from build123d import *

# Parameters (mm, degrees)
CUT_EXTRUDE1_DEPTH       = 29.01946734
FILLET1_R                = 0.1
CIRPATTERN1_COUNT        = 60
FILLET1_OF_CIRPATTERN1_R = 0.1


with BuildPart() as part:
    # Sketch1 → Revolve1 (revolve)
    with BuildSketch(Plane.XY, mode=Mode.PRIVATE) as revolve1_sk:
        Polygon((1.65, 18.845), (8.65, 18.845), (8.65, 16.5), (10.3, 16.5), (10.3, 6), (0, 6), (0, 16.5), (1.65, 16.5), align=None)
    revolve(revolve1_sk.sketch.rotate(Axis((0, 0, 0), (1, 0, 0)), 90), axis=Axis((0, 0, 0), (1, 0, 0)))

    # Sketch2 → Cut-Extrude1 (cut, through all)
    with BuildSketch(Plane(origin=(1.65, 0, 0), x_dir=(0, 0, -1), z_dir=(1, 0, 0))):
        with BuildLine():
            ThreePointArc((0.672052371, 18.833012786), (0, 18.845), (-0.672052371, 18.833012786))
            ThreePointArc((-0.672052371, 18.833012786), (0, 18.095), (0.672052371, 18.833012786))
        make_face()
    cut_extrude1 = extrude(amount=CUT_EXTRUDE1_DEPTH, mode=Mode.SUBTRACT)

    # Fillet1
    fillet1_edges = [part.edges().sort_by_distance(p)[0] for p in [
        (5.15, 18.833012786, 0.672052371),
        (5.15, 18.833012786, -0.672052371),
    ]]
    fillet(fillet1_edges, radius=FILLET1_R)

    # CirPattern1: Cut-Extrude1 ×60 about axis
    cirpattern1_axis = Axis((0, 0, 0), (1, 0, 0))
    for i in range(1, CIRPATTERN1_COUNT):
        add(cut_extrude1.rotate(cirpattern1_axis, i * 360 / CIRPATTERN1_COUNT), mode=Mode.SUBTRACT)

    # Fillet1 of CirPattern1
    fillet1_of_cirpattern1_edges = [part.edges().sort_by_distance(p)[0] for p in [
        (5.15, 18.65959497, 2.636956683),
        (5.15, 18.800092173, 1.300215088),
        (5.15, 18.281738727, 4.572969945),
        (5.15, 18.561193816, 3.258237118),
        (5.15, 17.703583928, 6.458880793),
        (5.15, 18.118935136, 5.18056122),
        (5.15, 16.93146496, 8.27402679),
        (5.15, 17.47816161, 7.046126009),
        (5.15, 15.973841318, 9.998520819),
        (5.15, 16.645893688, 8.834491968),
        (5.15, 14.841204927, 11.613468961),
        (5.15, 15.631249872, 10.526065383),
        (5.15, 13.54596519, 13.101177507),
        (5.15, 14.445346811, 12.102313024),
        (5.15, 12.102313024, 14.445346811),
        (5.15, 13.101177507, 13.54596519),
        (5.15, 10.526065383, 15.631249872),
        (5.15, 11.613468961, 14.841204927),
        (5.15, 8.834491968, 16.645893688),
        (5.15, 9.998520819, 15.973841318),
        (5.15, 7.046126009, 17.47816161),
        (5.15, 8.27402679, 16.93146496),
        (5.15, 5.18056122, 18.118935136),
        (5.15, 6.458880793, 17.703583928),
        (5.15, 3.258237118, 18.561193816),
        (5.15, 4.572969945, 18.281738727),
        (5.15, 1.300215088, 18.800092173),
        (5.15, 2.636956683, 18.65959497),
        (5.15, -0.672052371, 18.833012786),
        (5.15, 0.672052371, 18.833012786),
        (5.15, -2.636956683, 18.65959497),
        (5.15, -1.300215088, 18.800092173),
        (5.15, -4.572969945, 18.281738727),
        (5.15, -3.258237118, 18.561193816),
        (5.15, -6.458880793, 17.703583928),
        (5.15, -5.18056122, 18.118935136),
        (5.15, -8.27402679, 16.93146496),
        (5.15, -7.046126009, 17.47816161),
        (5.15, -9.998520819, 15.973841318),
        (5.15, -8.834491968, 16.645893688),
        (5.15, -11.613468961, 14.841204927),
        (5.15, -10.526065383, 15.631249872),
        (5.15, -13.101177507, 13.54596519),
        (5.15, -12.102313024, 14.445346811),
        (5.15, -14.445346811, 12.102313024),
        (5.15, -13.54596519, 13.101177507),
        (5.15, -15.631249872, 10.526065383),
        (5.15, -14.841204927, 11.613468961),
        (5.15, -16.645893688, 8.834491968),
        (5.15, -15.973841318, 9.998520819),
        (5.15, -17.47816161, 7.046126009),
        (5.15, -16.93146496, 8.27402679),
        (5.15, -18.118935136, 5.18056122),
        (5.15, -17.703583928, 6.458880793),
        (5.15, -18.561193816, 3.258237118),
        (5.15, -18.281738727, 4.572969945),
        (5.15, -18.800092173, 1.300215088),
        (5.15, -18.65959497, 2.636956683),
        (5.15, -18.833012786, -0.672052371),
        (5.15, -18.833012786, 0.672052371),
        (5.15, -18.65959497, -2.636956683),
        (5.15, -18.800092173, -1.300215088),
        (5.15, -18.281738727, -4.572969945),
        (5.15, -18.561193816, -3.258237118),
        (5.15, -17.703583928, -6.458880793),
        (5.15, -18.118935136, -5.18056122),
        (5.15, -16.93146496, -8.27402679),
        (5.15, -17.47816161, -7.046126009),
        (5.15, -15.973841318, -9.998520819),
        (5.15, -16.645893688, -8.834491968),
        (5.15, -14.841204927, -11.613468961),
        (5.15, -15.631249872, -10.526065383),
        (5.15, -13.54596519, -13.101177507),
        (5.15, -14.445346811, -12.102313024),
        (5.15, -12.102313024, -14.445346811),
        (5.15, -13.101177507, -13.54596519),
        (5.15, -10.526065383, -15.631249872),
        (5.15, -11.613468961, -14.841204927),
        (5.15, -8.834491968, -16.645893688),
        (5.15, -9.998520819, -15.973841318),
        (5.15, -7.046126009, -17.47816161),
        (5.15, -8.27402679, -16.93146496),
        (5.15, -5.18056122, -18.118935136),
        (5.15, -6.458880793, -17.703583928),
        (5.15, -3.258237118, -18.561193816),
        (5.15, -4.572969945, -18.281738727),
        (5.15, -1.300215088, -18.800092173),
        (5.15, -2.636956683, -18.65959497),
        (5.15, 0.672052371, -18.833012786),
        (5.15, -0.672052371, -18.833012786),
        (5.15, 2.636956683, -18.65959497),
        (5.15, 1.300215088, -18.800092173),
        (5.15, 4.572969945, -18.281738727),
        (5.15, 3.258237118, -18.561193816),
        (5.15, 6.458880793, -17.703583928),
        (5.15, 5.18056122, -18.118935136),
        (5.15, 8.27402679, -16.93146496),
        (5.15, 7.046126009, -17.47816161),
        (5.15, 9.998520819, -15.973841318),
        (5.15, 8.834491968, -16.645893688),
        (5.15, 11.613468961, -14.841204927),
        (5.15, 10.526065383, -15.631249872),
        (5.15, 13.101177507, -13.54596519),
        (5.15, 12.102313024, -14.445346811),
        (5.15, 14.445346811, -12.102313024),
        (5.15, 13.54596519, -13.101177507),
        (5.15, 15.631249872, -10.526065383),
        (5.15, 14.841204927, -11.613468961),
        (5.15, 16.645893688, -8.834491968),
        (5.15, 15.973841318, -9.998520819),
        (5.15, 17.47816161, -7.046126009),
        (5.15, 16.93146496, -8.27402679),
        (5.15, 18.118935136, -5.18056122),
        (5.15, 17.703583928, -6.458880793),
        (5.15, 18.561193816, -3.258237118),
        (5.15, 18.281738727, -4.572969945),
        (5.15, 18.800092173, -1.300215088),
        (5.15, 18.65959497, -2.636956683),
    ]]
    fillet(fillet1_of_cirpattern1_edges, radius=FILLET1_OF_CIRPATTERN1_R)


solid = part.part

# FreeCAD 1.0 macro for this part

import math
import FreeCAD as App
import Part
import Sketcher
Q = App.Units.Quantity


def edges_at(feature, points):
    """Names of the edges that pass closest to the given points."""
    edges = feature.Shape.Edges
    near = lambda p: min(range(len(edges)), key=lambda i: edges[i].distToShape(Part.Vertex(*p))[0])
    return sorted({f"Edge{near(p) + 1}" for p in points})


def add_polygon(sketch, points):
    """Adds a closed chain of lines whose ends are joined by coincident constraints."""
    first, n = sketch.GeometryCount, len(points)
    for a, b in zip(points, points[1:] + points[:1]):
        sketch.addGeometry(Part.LineSegment(App.Vector(*a, 0), App.Vector(*b, 0)), False)
    for i in range(n):
        sketch.addConstraint(Sketcher.Constraint("Coincident", first + i, 2, first + (i + 1) % n, 1))

doc = App.newDocument("Part")
body = doc.addObject("PartDesign::Body", "Body")

# Sketch on XY plane
sketch1 = body.newObject("Sketcher::SketchObject", "Sketch")
sketch1.AttachmentSupport = (doc.getObject("XY_Plane"), [""])
sketch1.MapMode = "FlatFace"
add_polygon(sketch1, [(8.7, 18.8), (1.6, 18.8), (1.6, 16.5), (0, 16.5), (0, 6), (10.3, 6), (10.3, 16.5), (8.7, 16.5)])  # lines 0-7
sketch1.addConstraint([
    Sketcher.Constraint("Horizontal", 0),
    Sketcher.Constraint("Vertical", 1),
    Sketcher.Constraint("Horizontal", 2),
    Sketcher.Constraint("Vertical", 3),
    Sketcher.Constraint("Horizontal", 4),
    Sketcher.Constraint("Vertical", 5),
    Sketcher.Constraint("Horizontal", 6),
    Sketcher.Constraint("Vertical", 7),
    Sketcher.Constraint("PointOnObject", 2, 2, -2),
    Sketcher.Constraint("Horizontal", 2, 2, 5, 2),
    Sketcher.Constraint("Equal", 2, 6),
    Sketcher.Constraint("DistanceX", 0, 2, 0, 1, Q("7 mm")),
    Sketcher.Constraint("DistanceX", 4, 1, 4, 2, Q("10.3 mm")),
    Sketcher.Constraint("DistanceY", 3, 2, 3, 1, Q("10.5 mm")),
    Sketcher.Constraint("DistanceY", -1, 1, 3, 2, Q("6 mm")),
    Sketcher.Constraint("DistanceY", 1, 2, 1, 1, Q("2.345 mm")),
])
revolution = body.newObject("PartDesign::Revolution", "Revolution")
revolution.Profile = sketch1
revolution.ReferenceAxis = (sketch1, ["H_Axis"])
revolution.Angle = 360

# Sketch on YZ plane
sketch2 = body.newObject("Sketcher::SketchObject", "Sketch001")
sketch2.AttachmentSupport = (doc.getObject("YZ_Plane"), [""])
sketch2.MapMode = "FlatFace"
sketch2.AttachmentOffset = App.Placement(App.Vector(0, 0, 1.65), App.Rotation())
sketch2.addGeometry([
    Part.ArcOfCircle(Part.Circle(App.Vector(0, 0, 0), App.Vector(0, 0, 1), 18.8), math.radians(-2.04), math.radians(2.04)),
    Part.ArcOfCircle(Part.Circle(App.Vector(18.8, 0, 0), App.Vector(0, 0, 1), 0.7), math.radians(85), math.radians(275)),
], False)
sketch2.addConstraint([
    Sketcher.Constraint("Coincident", 0, 1, 1, 2),
    Sketcher.Constraint("Coincident", 1, 1, 0, 2),
    Sketcher.Constraint("Coincident", 0, 3, -1, 1),
    Sketcher.Constraint("PointOnObject", 1, 3, -1),
    Sketcher.Constraint("Radius", 0, Q("18.844999 mm")),
    Sketcher.Constraint("Radius", 1, Q("0.675 mm")),
    Sketcher.Constraint("DistanceX", -1, 1, 1, 3, Q("18.77 mm")),
])
pocket1 = body.newObject("PartDesign::Pocket", "Pocket")
pocket1.Profile = sketch2
pocket1.Type = "ThroughAll"
pocket1.Reversed = True
doc.recompute()

fillet = body.newObject("PartDesign::Fillet", "Fillet")
fillet.Base = (pocket1, edges_at(pocket1, [(5.15, 18.833, 0.672), (5.15, 18.833, -0.672)]))
fillet.Radius = 0.1
doc.recompute()

polarpattern = body.newObject("PartDesign::PolarPattern", "PolarPattern")
polarpattern.Originals = [pocket1]
polarpattern.Axis = (doc.getObject("X_Axis"), [""])
polarpattern.Angle = 360
polarpattern.Occurrences = 60
body.Tip = polarpattern
doc.recompute()

fillet2 = body.newObject("PartDesign::Fillet", "Fillet001")
fillet2.Base = (polarpattern, edges_at(polarpattern, [
    (5.15, 18.66, 2.637),
    (5.15, 18.8, 1.3),
    (5.15, 18.282, 4.573),
    (5.15, 18.561, 3.258),
    (5.15, 17.704, 6.459),
    (5.15, 18.119, 5.181),
    (5.15, 16.931, 8.274),
    (5.15, 17.478, 7.046),
    (5.15, 15.974, 9.999),
    (5.15, 16.646, 8.834),
    (5.15, 14.841, 11.613),
    (5.15, 15.631, 10.526),
    (5.15, 13.546, 13.101),
    (5.15, 14.445, 12.102),
    (5.15, 12.102, 14.445),
    (5.15, 13.101, 13.546),
    (5.15, 10.526, 15.631),
    (5.15, 11.613, 14.841),
    (5.15, 8.834, 16.646),
    (5.15, 9.999, 15.974),
    (5.15, 7.046, 17.478),
    (5.15, 8.274, 16.931),
    (5.15, 5.181, 18.119),
    (5.15, 6.459, 17.704),
    (5.15, 3.258, 18.561),
    (5.15, 4.573, 18.282),
    (5.15, 1.3, 18.8),
    (5.15, 2.637, 18.66),
    (5.15, -0.672, 18.833),
    (5.15, 0.672, 18.833),
    (5.15, -2.637, 18.66),
    (5.15, -1.3, 18.8),
    (5.15, -4.573, 18.282),
    (5.15, -3.258, 18.561),
    (5.15, -6.459, 17.704),
    (5.15, -5.181, 18.119),
    (5.15, -8.274, 16.931),
    (5.15, -7.046, 17.478),
    (5.15, -9.999, 15.974),
    (5.15, -8.834, 16.646),
    (5.15, -11.613, 14.841),
    (5.15, -10.526, 15.631),
    (5.15, -13.101, 13.546),
    (5.15, -12.102, 14.445),
    (5.15, -14.445, 12.102),
    (5.15, -13.546, 13.101),
    (5.15, -15.631, 10.526),
    (5.15, -14.841, 11.613),
    (5.15, -16.646, 8.834),
    (5.15, -15.974, 9.999),
    (5.15, -17.478, 7.046),
    (5.15, -16.931, 8.274),
    (5.15, -18.119, 5.181),
    (5.15, -17.704, 6.459),
    (5.15, -18.561, 3.258),
    (5.15, -18.282, 4.573),
    (5.15, -18.8, 1.3),
    (5.15, -18.66, 2.637),
    (5.15, -18.833, -0.672),
    (5.15, -18.833, 0.672),
    (5.15, -18.66, -2.637),
    (5.15, -18.8, -1.3),
    (5.15, -18.282, -4.573),
    (5.15, -18.561, -3.258),
    (5.15, -17.704, -6.459),
    (5.15, -18.119, -5.181),
    (5.15, -16.931, -8.274),
    (5.15, -17.478, -7.046),
    (5.15, -15.974, -9.999),
    (5.15, -16.646, -8.834),
    (5.15, -14.841, -11.613),
    (5.15, -15.631, -10.526),
    (5.15, -13.546, -13.101),
    (5.15, -14.445, -12.102),
    (5.15, -12.102, -14.445),
    (5.15, -13.101, -13.546),
    (5.15, -10.526, -15.631),
    (5.15, -11.613, -14.841),
    (5.15, -8.834, -16.646),
    (5.15, -9.999, -15.974),
    (5.15, -7.046, -17.478),
    (5.15, -8.274, -16.931),
    (5.15, -5.181, -18.119),
    (5.15, -6.459, -17.704),
    (5.15, -3.258, -18.561),
    (5.15, -4.573, -18.282),
    (5.15, -1.3, -18.8),
    (5.15, -2.637, -18.66),
    (5.15, 0.672, -18.833),
    (5.15, -0.672, -18.833),
    (5.15, 2.637, -18.66),
    (5.15, 1.3, -18.8),
    (5.15, 4.573, -18.282),
    (5.15, 3.258, -18.561),
    (5.15, 6.459, -17.704),
    (5.15, 5.181, -18.119),
    (5.15, 8.274, -16.931),
    (5.15, 7.046, -17.478),
    (5.15, 9.999, -15.974),
    (5.15, 8.834, -16.646),
    (5.15, 11.613, -14.841),
    (5.15, 10.526, -15.631),
    (5.15, 13.101, -13.546),
    (5.15, 12.102, -14.445),
    (5.15, 14.445, -12.102),
    (5.15, 13.546, -13.101),
    (5.15, 15.631, -10.526),
    (5.15, 14.841, -11.613),
    (5.15, 16.646, -8.834),
    (5.15, 15.974, -9.999),
    (5.15, 17.478, -7.046),
    (5.15, 16.931, -8.274),
    (5.15, 18.119, -5.181),
    (5.15, 17.704, -6.459),
    (5.15, 18.561, -3.258),
    (5.15, 18.282, -4.573),
    (5.15, 18.8, -1.3),
    (5.15, 18.66, -2.637),
]))
fillet2.Radius = 0.1

doc.recompute()
